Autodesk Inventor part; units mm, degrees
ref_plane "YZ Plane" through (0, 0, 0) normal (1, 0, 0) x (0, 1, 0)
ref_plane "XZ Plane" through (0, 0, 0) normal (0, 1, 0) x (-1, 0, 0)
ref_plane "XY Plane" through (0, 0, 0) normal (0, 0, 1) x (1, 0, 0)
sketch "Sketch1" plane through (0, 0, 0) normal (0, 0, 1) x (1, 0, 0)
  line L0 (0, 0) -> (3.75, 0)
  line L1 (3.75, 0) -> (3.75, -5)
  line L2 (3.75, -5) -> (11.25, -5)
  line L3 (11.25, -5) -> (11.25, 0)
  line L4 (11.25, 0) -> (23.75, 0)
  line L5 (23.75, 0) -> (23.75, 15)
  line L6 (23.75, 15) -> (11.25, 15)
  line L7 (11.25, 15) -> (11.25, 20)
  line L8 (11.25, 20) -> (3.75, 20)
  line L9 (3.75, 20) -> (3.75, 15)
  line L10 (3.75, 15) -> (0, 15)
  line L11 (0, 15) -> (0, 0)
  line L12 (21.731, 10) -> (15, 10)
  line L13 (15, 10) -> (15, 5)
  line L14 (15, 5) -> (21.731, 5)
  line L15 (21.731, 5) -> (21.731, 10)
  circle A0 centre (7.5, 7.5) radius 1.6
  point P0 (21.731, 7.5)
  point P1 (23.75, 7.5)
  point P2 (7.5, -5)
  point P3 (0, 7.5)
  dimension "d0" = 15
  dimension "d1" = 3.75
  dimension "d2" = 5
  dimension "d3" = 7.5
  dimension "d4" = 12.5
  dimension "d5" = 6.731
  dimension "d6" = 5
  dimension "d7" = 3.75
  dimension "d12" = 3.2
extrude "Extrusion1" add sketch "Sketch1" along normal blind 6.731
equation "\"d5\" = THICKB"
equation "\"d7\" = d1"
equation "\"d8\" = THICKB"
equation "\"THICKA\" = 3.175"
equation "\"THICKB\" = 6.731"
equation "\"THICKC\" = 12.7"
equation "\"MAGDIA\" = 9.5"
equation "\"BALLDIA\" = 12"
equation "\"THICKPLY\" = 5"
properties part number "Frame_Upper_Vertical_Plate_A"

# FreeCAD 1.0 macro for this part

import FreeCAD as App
import Part
import Sketcher
Q = App.Units.Quantity


def add_polygon(sketch, points):
    """Adds a closed chain of lines whose ends are joined by coincident constraints."""
    first, n = sketch.GeometryCount, len(points)
    for a, b in zip(points, points[1:] + points[:1]):
        sketch.addGeometry(Part.LineSegment(App.Vector(*a, 0), App.Vector(*b, 0)), False)
    for i in range(n):
        sketch.addConstraint(Sketcher.Constraint("Coincident", first + i, 2, first + (i + 1) % n, 1))

doc = App.newDocument("Part")
body = doc.addObject("PartDesign::Body", "Body")

sketch1 = body.newObject("Sketcher::SketchObject", "Sketch")
sketch1.AttachmentSupport = (doc.getObject("XY_Plane"), [""])
sketch1.MapMode = "FlatFace"
add_polygon(sketch1, [(0, 15), (0, 0), (3.8, 0), (3.8, -5), (11.2, -5), (11.2, 0), (23.8, 0), (23.8, 15), (11.2, 15), (11.2, 20), (3.8, 20), (3.8, 15)])
sketch1.addGeometry(Part.Circle(App.Vector(7.5, 7.5, 0), App.Vector(0, 0, 1), 1.6), False)
add_polygon(sketch1, [(15, 10), (21.7, 10), (21.7, 5), (15, 5)])
sketch1.addConstraint([
    Sketcher.Constraint("Vertical", 0),
    Sketcher.Constraint("Horizontal", 1),
    Sketcher.Constraint("Vertical", 2),
    Sketcher.Constraint("Horizontal", 3),
    Sketcher.Constraint("Vertical", 4),
    Sketcher.Constraint("Horizontal", 5),
    Sketcher.Constraint("Vertical", 6),
    Sketcher.Constraint("Horizontal", 7),
    Sketcher.Constraint("Vertical", 8),
    Sketcher.Constraint("Horizontal", 9),
    Sketcher.Constraint("Vertical", 10),
    Sketcher.Constraint("Horizontal", 11),
    Sketcher.Constraint("Horizontal", 13),
    Sketcher.Constraint("Vertical", 14),
    Sketcher.Constraint("Horizontal", 15),
    Sketcher.Constraint("Vertical", 16),
    Sketcher.Constraint("Coincident", 0, 2, -1, 1),
    Sketcher.Constraint("PointOnObject", 4, 2, -1),
    Sketcher.Constraint("Horizontal", 7, 2, 10, 2),
    Sketcher.Constraint("Vertical", 4, 2, 7, 2),
    Sketcher.Constraint("Vertical", 2, 2, 9, 2),
    Sketcher.Constraint("Equal", 4, 8),
    Sketcher.Constraint("Equal", 10, 14),
    Sketcher.Constraint("Diameter", 12, Q("3.2 mm")),
    Sketcher.Constraint("DistanceY", 0, 2, 0, 1, Q("15 mm")),
    Sketcher.Constraint("DistanceY", 2, 2, 2, 1, Q("5 mm")),
    Sketcher.Constraint("DistanceX", 3, 1, 3, 2, Q("7.5 mm")),
    Sketcher.Constraint("DistanceX", 5, 1, 5, 2, Q("12.5 mm")),
    Sketcher.Constraint("DistanceY", -1, 1, 14, 2, Q("5 mm")),
    Sketcher.Constraint("DistanceX", -1, 1, 15, 2, Q("15 mm")),
    Sketcher.Constraint("DistanceX", 1, 1, 1, 2, Q("3.75 mm")),
    Sketcher.Constraint("DistanceX", -1, 1, 12, 3, Q("7.5 mm")),
    Sketcher.Constraint("DistanceY", -1, 1, 12, 3, Q("7.5 mm")),
    Sketcher.Constraint("DistanceX", 13, 1, 13, 2, Q("6.731 mm")),
])
pad1 = body.newObject("PartDesign::Pad", "Pad")
pad1.Profile = sketch1
pad1.Length = 6.731

doc.recompute()
